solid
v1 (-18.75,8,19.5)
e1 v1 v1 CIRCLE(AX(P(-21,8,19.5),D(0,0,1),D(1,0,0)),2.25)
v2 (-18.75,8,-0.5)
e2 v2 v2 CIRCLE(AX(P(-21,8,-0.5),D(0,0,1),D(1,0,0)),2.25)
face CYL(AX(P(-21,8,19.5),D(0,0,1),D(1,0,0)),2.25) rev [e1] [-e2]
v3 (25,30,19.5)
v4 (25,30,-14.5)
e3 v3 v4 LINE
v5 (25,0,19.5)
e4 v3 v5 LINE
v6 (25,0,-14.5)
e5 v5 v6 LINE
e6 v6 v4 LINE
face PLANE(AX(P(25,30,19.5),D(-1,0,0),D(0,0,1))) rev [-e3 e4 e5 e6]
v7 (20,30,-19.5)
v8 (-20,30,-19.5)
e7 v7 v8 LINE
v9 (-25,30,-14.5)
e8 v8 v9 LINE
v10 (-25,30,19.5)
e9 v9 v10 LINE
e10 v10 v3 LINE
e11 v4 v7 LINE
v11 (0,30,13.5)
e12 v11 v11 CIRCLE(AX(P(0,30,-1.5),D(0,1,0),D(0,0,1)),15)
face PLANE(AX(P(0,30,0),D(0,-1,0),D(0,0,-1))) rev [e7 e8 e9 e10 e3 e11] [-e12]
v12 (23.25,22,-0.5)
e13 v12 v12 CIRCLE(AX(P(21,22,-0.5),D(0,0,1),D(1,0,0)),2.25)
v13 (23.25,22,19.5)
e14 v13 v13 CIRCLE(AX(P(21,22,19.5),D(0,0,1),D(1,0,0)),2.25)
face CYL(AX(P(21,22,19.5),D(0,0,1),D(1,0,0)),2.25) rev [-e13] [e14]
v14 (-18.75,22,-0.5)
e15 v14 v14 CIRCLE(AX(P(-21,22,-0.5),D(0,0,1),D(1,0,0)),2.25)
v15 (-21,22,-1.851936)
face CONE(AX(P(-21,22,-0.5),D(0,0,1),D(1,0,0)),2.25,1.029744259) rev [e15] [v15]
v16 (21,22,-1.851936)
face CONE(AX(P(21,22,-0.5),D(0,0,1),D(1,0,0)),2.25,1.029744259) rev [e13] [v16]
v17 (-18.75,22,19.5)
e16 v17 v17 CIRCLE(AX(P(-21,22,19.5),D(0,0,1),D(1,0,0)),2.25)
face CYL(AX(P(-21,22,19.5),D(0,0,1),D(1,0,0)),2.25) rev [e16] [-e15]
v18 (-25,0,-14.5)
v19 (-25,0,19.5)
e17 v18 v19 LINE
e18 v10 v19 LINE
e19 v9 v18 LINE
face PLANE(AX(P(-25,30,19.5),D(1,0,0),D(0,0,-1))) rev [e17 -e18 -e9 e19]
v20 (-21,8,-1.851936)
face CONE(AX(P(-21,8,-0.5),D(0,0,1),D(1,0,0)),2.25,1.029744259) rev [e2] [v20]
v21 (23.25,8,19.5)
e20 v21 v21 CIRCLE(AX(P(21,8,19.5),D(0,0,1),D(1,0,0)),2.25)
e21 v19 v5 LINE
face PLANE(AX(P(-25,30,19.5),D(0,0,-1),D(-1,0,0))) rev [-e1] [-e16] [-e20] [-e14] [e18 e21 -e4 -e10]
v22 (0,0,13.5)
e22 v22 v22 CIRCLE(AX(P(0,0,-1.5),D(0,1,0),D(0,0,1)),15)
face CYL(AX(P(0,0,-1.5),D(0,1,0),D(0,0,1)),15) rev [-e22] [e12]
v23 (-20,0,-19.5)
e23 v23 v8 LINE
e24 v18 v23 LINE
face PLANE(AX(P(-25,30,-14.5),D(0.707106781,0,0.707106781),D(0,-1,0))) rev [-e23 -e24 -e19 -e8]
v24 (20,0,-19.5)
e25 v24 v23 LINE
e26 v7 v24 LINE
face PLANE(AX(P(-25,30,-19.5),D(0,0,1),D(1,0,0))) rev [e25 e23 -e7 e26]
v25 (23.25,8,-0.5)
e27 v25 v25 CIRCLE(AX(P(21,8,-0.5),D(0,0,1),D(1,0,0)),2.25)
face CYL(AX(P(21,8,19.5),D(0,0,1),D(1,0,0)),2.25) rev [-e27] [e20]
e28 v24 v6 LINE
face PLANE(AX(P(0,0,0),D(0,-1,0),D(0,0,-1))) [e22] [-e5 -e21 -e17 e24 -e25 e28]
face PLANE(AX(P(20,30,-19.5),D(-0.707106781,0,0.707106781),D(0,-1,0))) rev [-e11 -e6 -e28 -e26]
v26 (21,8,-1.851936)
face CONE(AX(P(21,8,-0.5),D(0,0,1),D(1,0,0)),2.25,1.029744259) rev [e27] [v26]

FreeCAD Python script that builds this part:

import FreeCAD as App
import Part
import Sketcher
from FreeCAD import Vector


def edges_at(feature, points):
    """Names of the edges that pass closest to the given points."""
    edges = feature.Shape.Edges
    near = lambda p: min(range(len(edges)), key=lambda i: edges[i].distToShape(Part.Vertex(*p))[0])
    return sorted({f"Edge{near(p) + 1}" for p in points})


def add_polygon(sketch, points):
    """Adds a closed chain of lines whose ends are joined by coincident constraints."""
    first, n = sketch.GeometryCount, len(points)
    for a, b in zip(points, points[1:] + points[:1]):
        sketch.addGeometry(Part.LineSegment(App.Vector(*a, 0), App.Vector(*b, 0)), False)
    for i in range(n):
        sketch.addConstraint(Sketcher.Constraint("Coincident", first + i, 2, first + (i + 1) % n, 1))

doc = App.newDocument("Part")
params = doc.addObject("Spreadsheet::Sheet", "Params")
for row, (alias, value) in enumerate([
    ("sketch1_width", "50 mm"),
    ("sketch1_height", "39 mm"),
    ("pad1_length", "30 mm"),
    ("sketch2_diameter", "30 mm"),
    ("pocket1_length", "30 mm"),
    ("chamfer_size", "5 mm"),
    ("sketch3_diameter", "4.5 mm"),
    ("hole_diameter", "4.5 mm"),
    ("hole_depth", "20 mm"),
], start=1):
    params.set(f"A{row}", alias)
    params.set(f"B{row}", "=" + value)
    params.setAlias(f"B{row}", alias)

body = doc.addObject("PartDesign::Body", "Body")

# Sketch on XZ plane
sketch1 = doc.addObject("Sketcher::SketchObject", "Sketch")
body.addObject(sketch1)
sketch1.AttachmentSupport = (doc.XZ_Plane, [""])
sketch1.MapMode = "FlatFace"
add_polygon(sketch1, [(-25, -19.5), (-25, 19.5), (25, 19.5), (25, -19.5)])  # lines 0-3
sketch1.addConstraint(Sketcher.Constraint("Vertical", 0))
sketch1.addConstraint(Sketcher.Constraint("Horizontal", 1))
sketch1.addConstraint(Sketcher.Constraint("Vertical", 2))
sketch1.addConstraint(Sketcher.Constraint("Horizontal", 3))
sketch1.addConstraint(Sketcher.Constraint("Symmetric", 0, 2, 2, 2, -1, 1))
sketch1.addConstraint(Sketcher.Constraint("DistanceX", 1, 1, 1, 2, 50.0))
sketch1.addConstraint(Sketcher.Constraint("DistanceY", 0, 1, 0, 2, 39.0))
sketch1.setExpression("Constraints[9]", "Params.sketch1_width")
sketch1.setExpression("Constraints[10]", "Params.sketch1_height")
pad1 = doc.addObject("PartDesign::Pad", "Pad")
body.addObject(pad1)
pad1.Profile = sketch1
pad1.setExpression("Length", "Params.pad1_length")
pad1.Reversed = True

# Sketch on XZ plane
sketch2 = doc.addObject("Sketcher::SketchObject", "Sketch001")
body.addObject(sketch2)
sketch2.AttachmentSupport = (doc.XZ_Plane, [""])
sketch2.MapMode = "FlatFace"
sketch2.AttachmentOffset = App.Placement(Vector(0, 0, -30), App.Rotation())
sketch2.addGeometry(Part.Circle(Vector(0, -1.5, 0), Vector(0, 0, 1), 15), False)
sketch2.addConstraint(Sketcher.Constraint("PointOnObject", 0, 3, -2))
sketch2.addConstraint(Sketcher.Constraint("Diameter", 0, 30.0))
sketch2.addConstraint(Sketcher.Constraint("DistanceY", 0, 3, -1, 1, 1.5))
sketch2.setExpression("Constraints[1]", "Params.sketch2_diameter")
pocket1 = doc.addObject("PartDesign::Pocket", "Pocket")
body.addObject(pocket1)
pocket1.Profile = sketch2
pocket1.setExpression("Length", "Params.pocket1_length")
pocket1.Reversed = True
doc.recompute()

chamfer = doc.addObject("PartDesign::Chamfer", "Chamfer")
body.addObject(chamfer)
chamfer.Base = (pocket1, edges_at(pocket1, [(-25, 15, -19.5), (25, 15, -19.5)]))
chamfer.setExpression("Size", "Params.chamfer_size")

# Sketch on XY plane
sketch3 = doc.addObject("Sketcher::SketchObject", "Sketch002")
body.addObject(sketch3)
sketch3.AttachmentSupport = (doc.XY_Plane, [""])
sketch3.MapMode = "FlatFace"
sketch3.AttachmentOffset = App.Placement(Vector(0, 0, 19.5), App.Rotation())
sketch3.addGeometry(Part.Circle(Vector(-21, 22, 0), Vector(0, 0, 1), 2.25), False)
sketch3.addGeometry(Part.Circle(Vector(21, 22, 0), Vector(0, 0, 1), 2.25), False)
sketch3.addGeometry(Part.Circle(Vector(21, 8, 0), Vector(0, 0, 1), 2.25), False)
sketch3.addGeometry(Part.Circle(Vector(-21, 8, 0), Vector(0, 0, 1), 2.25), False)
sketch3.addConstraint(Sketcher.Constraint("Equal", 0, 1))
sketch3.addConstraint(Sketcher.Constraint("Equal", 1, 2))
sketch3.addConstraint(Sketcher.Constraint("Equal", 2, 3))
sketch3.addConstraint(Sketcher.Constraint("Symmetric", 0, 3, 1, 3, -2))
sketch3.addConstraint(Sketcher.Constraint("Symmetric", 2, 3, 3, 3, -2))
sketch3.addConstraint(Sketcher.Constraint("Vertical", 1, 3, 2, 3))
sketch3.addConstraint(Sketcher.Constraint("Diameter", 0, 4.5))
sketch3.addConstraint(Sketcher.Constraint("DistanceX", 0, 3, -1, 1, 21.0))
sketch3.addConstraint(Sketcher.Constraint("DistanceY", -1, 1, 0, 3, 22.0))
sketch3.addConstraint(Sketcher.Constraint("DistanceY", -1, 1, 2, 3, 8.0))
sketch3.setExpression("Constraints[6]", "Params.sketch3_diameter")
doc.recompute()
hole = doc.addObject("PartDesign::Hole", "Hole")
body.addObject(hole)
hole.Profile = sketch3
hole.ThreadType = "None"
hole.setExpression("Diameter", "Params.hole_diameter")
hole.DepthType = "Dimension"
hole.setExpression("Depth", "Params.hole_depth")
hole.DrillPoint = "Angled"
hole.DrillPointAngle = 118

doc.recompute()
